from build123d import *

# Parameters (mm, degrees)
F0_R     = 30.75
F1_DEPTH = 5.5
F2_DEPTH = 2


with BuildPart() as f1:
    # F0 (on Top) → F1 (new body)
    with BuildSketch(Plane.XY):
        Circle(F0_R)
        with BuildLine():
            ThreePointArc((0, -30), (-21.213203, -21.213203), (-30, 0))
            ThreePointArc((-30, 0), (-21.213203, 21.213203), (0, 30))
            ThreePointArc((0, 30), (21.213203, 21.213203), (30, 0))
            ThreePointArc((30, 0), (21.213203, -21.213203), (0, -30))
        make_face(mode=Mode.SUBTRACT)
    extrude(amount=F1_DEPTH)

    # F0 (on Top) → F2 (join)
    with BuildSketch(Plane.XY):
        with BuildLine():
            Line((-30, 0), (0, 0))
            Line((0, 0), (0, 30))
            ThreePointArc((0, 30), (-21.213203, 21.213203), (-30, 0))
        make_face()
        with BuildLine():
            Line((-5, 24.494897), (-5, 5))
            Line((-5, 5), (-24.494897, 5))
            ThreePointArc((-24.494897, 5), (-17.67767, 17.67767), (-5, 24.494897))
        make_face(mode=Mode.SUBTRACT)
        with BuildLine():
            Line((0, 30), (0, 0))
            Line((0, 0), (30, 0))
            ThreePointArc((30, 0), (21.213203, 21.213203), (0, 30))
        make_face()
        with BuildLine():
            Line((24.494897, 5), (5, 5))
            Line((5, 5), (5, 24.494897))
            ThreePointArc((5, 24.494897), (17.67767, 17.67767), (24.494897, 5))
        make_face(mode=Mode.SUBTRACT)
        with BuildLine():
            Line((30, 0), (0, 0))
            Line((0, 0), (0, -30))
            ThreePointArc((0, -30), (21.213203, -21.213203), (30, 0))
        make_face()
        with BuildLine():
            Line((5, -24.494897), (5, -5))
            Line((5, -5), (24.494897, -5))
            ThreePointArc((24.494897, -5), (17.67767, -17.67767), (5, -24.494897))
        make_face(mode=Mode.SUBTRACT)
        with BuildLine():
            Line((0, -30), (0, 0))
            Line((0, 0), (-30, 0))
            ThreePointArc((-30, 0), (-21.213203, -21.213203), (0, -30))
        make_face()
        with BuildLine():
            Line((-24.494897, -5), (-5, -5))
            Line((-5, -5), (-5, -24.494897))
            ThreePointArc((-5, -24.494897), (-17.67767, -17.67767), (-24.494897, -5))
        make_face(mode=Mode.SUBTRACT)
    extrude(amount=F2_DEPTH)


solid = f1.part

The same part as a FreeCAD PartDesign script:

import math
import FreeCAD as App
import Part
import Sketcher
from FreeCAD import Vector

doc = App.newDocument("Part")
params = doc.addObject("Spreadsheet::Sheet", "Params")
for row, (alias, value) in enumerate([
    ("sketch1_radius", "30.000001 mm"),
    ("sketch1_diameter", "61.5 mm"),
    ("pad1_length", "5.5 mm"),
    ("sketch2_radius", "30.000001 mm"),
    ("pad2_length", "2 mm"),
], start=1):
    params.set(f"A{row}", alias)
    params.set(f"B{row}", "=" + value)
    params.setAlias(f"B{row}", alias)

body = doc.addObject("PartDesign::Body", "Body")

sketch1 = body.newObject("Sketcher::SketchObject", "Sketch")
sketch1.AttachmentSupport = (doc.getObject("XY_Plane"), [""])
sketch1.MapMode = "FlatFace"
sketch1.addGeometry(Part.Circle(Vector(0, 0, 0), Vector(0, 0, 1), 31), False)
sketch1.addGeometry(Part.ArcOfCircle(Part.Circle(Vector(0, 0, 0), Vector(0, 0, 1), 30), math.radians(-90), math.radians(0)), False)
sketch1.addGeometry(Part.ArcOfCircle(Part.Circle(Vector(0, 0, 0), Vector(0, 0, 1), 30), math.radians(-180), math.radians(-90)), False)
sketch1.addGeometry(Part.ArcOfCircle(Part.Circle(Vector(0, 0, 0), Vector(0, 0, 1), 30), math.radians(90), math.radians(180)), False)
sketch1.addGeometry(Part.ArcOfCircle(Part.Circle(Vector(0, 0, 0), Vector(0, 0, 1), 30), math.radians(0), math.radians(90)), False)
sketch1.addConstraint(Sketcher.Constraint("Tangent", 1, 1, 2, 2))
sketch1.addConstraint(Sketcher.Constraint("Tangent", 2, 1, 3, 2))
sketch1.addConstraint(Sketcher.Constraint("Tangent", 3, 1, 4, 2))
sketch1.addConstraint(Sketcher.Constraint("Tangent", 4, 1, 1, 2))
sketch1.addConstraint(Sketcher.Constraint("Coincident", 0, 3, -1, 1))
sketch1.addConstraint(Sketcher.Constraint("Coincident", 1, 3, -1, 1))
sketch1.addConstraint(Sketcher.Constraint("Equal", 1, 2))
sketch1.addConstraint(Sketcher.Constraint("PointOnObject", 1, 1, -2))
sketch1.addConstraint(Sketcher.Constraint("PointOnObject", 2, 1, -1))
sketch1.addConstraint(Sketcher.Constraint("PointOnObject", 3, 1, -2))
sketch1.addConstraint(Sketcher.Constraint("PointOnObject", 4, 1, -1))
sketch1.addConstraint(Sketcher.Constraint("Radius", 1, 30.000001))
sketch1.addConstraint(Sketcher.Constraint("Diameter", 0, 61.5))
sketch1.setExpression("Constraints[11]", "Params.sketch1_radius")
sketch1.setExpression("Constraints[12]", "Params.sketch1_diameter")
pad1 = body.newObject("PartDesign::Pad", "Pad")
pad1.Profile = sketch1
pad1.setExpression("Length", "Params.pad1_length")

sketch2 = body.newObject("Sketcher::SketchObject", "Sketch001")
sketch2.AttachmentSupport = (doc.getObject("XY_Plane"), [""])
sketch2.MapMode = "FlatFace"
sketch2.addGeometry(Part.ArcOfCircle(Part.Circle(Vector(0, 0, 0), Vector(0, 0, 1), 30), math.radians(90), math.radians(180)), False)
sketch2.addGeometry(Part.ArcOfCircle(Part.Circle(Vector(0, 0, 0), Vector(0, 0, 1), 30), math.radians(-180), math.radians(-90)), False)
sketch2.addGeometry(Part.ArcOfCircle(Part.Circle(Vector(0, 0, 0), Vector(0, 0, 1), 30), math.radians(-90), math.radians(0)), False)
sketch2.addGeometry(Part.ArcOfCircle(Part.Circle(Vector(0, 0, 0), Vector(0, 0, 1), 30), math.radians(0), math.radians(90)), False)
sketch2.addGeometry(Part.ArcOfCircle(Part.Circle(Vector(0, 0, 0), Vector(0, 0, 1), 25), math.radians(-168), math.radians(-102)), False)
sketch2.addGeometry(Part.LineSegment(Vector(-24, -5, 0), Vector(-5, -5, 0)), False)
sketch2.addGeometry(Part.LineSegment(Vector(-5, -5, 0), Vector(-5, -24, 0)), False)
sketch2.addGeometry(Part.ArcOfCircle(Part.Circle(Vector(0, 0, 0), Vector(0, 0, 1), 25), math.radians(-78), math.radians(-12)), False)
sketch2.addGeometry(Part.LineSegment(Vector(5, -24, 0), Vector(5, -5, 0)), False)
sketch2.addGeometry(Part.LineSegment(Vector(5, -5, 0), Vector(24, -5, 0)), False)
sketch2.addGeometry(Part.ArcOfCircle(Part.Circle(Vector(0, 0, 0), Vector(0, 0, 1), 25), math.radians(102), math.radians(168)), False)
sketch2.addGeometry(Part.LineSegment(Vector(-5, 24, 0), Vector(-5, 5, 0)), False)
sketch2.addGeometry(Part.LineSegment(Vector(-5, 5, 0), Vector(-24, 5, 0)), False)
sketch2.addGeometry(Part.ArcOfCircle(Part.Circle(Vector(0, 0, 0), Vector(0, 0, 1), 25), math.radians(12), math.radians(78)), False)
sketch2.addGeometry(Part.LineSegment(Vector(24, 5, 0), Vector(5, 5, 0)), False)
sketch2.addGeometry(Part.LineSegment(Vector(5, 5, 0), Vector(5, 24, 0)), False)
sketch2.addConstraint(Sketcher.Constraint("Tangent", 0, 2, 1, 1))
sketch2.addConstraint(Sketcher.Constraint("Tangent", 1, 2, 2, 1))
sketch2.addConstraint(Sketcher.Constraint("Tangent", 2, 2, 3, 1))
sketch2.addConstraint(Sketcher.Constraint("Tangent", 3, 2, 0, 1))
sketch2.addConstraint(Sketcher.Constraint("Coincident", 4, 1, 5, 1))
sketch2.addConstraint(Sketcher.Constraint("Coincident", 5, 2, 6, 1))
sketch2.addConstraint(Sketcher.Constraint("Coincident", 6, 2, 4, 2))
sketch2.addConstraint(Sketcher.Constraint("Coincident", 7, 1, 8, 1))
sketch2.addConstraint(Sketcher.Constraint("Coincident", 8, 2, 9, 1))
sketch2.addConstraint(Sketcher.Constraint("Coincident", 9, 2, 7, 2))
sketch2.addConstraint(Sketcher.Constraint("Coincident", 10, 1, 11, 1))
sketch2.addConstraint(Sketcher.Constraint("Coincident", 11, 2, 12, 1))
sketch2.addConstraint(Sketcher.Constraint("Coincident", 12, 2, 10, 2))
sketch2.addConstraint(Sketcher.Constraint("Coincident", 13, 1, 14, 1))
sketch2.addConstraint(Sketcher.Constraint("Coincident", 14, 2, 15, 1))
sketch2.addConstraint(Sketcher.Constraint("Coincident", 15, 2, 13, 2))
sketch2.addConstraint(Sketcher.Constraint("Horizontal", 5))
sketch2.addConstraint(Sketcher.Constraint("Vertical", 6))
sketch2.addConstraint(Sketcher.Constraint("Vertical", 8))
sketch2.addConstraint(Sketcher.Constraint("Horizontal", 9))
sketch2.addConstraint(Sketcher.Constraint("Vertical", 11))
sketch2.addConstraint(Sketcher.Constraint("Horizontal", 12))
sketch2.addConstraint(Sketcher.Constraint("Horizontal", 14))
sketch2.addConstraint(Sketcher.Constraint("Vertical", 15))
sketch2.addConstraint(Sketcher.Constraint("Coincident", 0, 3, -1, 1))
sketch2.addConstraint(Sketcher.Constraint("Coincident", 4, 3, -1, 1))
sketch2.addConstraint(Sketcher.Constraint("Coincident", 7, 3, -1, 1))
sketch2.addConstraint(Sketcher.Constraint("Coincident", 10, 3, -1, 1))
sketch2.addConstraint(Sketcher.Constraint("Coincident", 13, 3, -1, 1))
sketch2.addConstraint(Sketcher.Constraint("Equal", 0, 1))
sketch2.addConstraint(Sketcher.Constraint("Equal", 4, 7))
sketch2.addConstraint(Sketcher.Constraint("Equal", 7, 10))
sketch2.addConstraint(Sketcher.Constraint("Equal", 10, 13))
sketch2.addConstraint(Sketcher.Constraint("Symmetric", 8, 2, 11, 2, -1, 1))
sketch2.addConstraint(Sketcher.Constraint("Symmetric", 5, 2, 14, 2, -1, 1))
sketch2.addConstraint(Sketcher.Constraint("Symmetric", 5, 2, 8, 2, -2))
sketch2.addConstraint(Sketcher.Constraint("PointOnObject", 0, 2, -1))
sketch2.addConstraint(Sketcher.Constraint("PointOnObject", 1, 2, -2))
sketch2.addConstraint(Sketcher.Constraint("PointOnObject", 2, 2, -1))
sketch2.addConstraint(Sketcher.Constraint("PointOnObject", 3, 2, -2))
sketch2.addConstraint(Sketcher.Constraint("Equal", 14, 6))
sketch2.addConstraint(Sketcher.Constraint("Radius", 0, 30.000001))
sketch2.addConstraint(Sketcher.Constraint("DistanceY", 4, 1, -1, 1, 5.0))
sketch2.addConstraint(Sketcher.Constraint("Radius", 4, 24.999994))
sketch2.setExpression("Constraints[41]", "Params.sketch2_radius")
pad2 = body.newObject("PartDesign::Pad", "Pad001")
pad2.Profile = sketch2
pad2.setExpression("Length", "Params.pad2_length")

doc.recompute()
